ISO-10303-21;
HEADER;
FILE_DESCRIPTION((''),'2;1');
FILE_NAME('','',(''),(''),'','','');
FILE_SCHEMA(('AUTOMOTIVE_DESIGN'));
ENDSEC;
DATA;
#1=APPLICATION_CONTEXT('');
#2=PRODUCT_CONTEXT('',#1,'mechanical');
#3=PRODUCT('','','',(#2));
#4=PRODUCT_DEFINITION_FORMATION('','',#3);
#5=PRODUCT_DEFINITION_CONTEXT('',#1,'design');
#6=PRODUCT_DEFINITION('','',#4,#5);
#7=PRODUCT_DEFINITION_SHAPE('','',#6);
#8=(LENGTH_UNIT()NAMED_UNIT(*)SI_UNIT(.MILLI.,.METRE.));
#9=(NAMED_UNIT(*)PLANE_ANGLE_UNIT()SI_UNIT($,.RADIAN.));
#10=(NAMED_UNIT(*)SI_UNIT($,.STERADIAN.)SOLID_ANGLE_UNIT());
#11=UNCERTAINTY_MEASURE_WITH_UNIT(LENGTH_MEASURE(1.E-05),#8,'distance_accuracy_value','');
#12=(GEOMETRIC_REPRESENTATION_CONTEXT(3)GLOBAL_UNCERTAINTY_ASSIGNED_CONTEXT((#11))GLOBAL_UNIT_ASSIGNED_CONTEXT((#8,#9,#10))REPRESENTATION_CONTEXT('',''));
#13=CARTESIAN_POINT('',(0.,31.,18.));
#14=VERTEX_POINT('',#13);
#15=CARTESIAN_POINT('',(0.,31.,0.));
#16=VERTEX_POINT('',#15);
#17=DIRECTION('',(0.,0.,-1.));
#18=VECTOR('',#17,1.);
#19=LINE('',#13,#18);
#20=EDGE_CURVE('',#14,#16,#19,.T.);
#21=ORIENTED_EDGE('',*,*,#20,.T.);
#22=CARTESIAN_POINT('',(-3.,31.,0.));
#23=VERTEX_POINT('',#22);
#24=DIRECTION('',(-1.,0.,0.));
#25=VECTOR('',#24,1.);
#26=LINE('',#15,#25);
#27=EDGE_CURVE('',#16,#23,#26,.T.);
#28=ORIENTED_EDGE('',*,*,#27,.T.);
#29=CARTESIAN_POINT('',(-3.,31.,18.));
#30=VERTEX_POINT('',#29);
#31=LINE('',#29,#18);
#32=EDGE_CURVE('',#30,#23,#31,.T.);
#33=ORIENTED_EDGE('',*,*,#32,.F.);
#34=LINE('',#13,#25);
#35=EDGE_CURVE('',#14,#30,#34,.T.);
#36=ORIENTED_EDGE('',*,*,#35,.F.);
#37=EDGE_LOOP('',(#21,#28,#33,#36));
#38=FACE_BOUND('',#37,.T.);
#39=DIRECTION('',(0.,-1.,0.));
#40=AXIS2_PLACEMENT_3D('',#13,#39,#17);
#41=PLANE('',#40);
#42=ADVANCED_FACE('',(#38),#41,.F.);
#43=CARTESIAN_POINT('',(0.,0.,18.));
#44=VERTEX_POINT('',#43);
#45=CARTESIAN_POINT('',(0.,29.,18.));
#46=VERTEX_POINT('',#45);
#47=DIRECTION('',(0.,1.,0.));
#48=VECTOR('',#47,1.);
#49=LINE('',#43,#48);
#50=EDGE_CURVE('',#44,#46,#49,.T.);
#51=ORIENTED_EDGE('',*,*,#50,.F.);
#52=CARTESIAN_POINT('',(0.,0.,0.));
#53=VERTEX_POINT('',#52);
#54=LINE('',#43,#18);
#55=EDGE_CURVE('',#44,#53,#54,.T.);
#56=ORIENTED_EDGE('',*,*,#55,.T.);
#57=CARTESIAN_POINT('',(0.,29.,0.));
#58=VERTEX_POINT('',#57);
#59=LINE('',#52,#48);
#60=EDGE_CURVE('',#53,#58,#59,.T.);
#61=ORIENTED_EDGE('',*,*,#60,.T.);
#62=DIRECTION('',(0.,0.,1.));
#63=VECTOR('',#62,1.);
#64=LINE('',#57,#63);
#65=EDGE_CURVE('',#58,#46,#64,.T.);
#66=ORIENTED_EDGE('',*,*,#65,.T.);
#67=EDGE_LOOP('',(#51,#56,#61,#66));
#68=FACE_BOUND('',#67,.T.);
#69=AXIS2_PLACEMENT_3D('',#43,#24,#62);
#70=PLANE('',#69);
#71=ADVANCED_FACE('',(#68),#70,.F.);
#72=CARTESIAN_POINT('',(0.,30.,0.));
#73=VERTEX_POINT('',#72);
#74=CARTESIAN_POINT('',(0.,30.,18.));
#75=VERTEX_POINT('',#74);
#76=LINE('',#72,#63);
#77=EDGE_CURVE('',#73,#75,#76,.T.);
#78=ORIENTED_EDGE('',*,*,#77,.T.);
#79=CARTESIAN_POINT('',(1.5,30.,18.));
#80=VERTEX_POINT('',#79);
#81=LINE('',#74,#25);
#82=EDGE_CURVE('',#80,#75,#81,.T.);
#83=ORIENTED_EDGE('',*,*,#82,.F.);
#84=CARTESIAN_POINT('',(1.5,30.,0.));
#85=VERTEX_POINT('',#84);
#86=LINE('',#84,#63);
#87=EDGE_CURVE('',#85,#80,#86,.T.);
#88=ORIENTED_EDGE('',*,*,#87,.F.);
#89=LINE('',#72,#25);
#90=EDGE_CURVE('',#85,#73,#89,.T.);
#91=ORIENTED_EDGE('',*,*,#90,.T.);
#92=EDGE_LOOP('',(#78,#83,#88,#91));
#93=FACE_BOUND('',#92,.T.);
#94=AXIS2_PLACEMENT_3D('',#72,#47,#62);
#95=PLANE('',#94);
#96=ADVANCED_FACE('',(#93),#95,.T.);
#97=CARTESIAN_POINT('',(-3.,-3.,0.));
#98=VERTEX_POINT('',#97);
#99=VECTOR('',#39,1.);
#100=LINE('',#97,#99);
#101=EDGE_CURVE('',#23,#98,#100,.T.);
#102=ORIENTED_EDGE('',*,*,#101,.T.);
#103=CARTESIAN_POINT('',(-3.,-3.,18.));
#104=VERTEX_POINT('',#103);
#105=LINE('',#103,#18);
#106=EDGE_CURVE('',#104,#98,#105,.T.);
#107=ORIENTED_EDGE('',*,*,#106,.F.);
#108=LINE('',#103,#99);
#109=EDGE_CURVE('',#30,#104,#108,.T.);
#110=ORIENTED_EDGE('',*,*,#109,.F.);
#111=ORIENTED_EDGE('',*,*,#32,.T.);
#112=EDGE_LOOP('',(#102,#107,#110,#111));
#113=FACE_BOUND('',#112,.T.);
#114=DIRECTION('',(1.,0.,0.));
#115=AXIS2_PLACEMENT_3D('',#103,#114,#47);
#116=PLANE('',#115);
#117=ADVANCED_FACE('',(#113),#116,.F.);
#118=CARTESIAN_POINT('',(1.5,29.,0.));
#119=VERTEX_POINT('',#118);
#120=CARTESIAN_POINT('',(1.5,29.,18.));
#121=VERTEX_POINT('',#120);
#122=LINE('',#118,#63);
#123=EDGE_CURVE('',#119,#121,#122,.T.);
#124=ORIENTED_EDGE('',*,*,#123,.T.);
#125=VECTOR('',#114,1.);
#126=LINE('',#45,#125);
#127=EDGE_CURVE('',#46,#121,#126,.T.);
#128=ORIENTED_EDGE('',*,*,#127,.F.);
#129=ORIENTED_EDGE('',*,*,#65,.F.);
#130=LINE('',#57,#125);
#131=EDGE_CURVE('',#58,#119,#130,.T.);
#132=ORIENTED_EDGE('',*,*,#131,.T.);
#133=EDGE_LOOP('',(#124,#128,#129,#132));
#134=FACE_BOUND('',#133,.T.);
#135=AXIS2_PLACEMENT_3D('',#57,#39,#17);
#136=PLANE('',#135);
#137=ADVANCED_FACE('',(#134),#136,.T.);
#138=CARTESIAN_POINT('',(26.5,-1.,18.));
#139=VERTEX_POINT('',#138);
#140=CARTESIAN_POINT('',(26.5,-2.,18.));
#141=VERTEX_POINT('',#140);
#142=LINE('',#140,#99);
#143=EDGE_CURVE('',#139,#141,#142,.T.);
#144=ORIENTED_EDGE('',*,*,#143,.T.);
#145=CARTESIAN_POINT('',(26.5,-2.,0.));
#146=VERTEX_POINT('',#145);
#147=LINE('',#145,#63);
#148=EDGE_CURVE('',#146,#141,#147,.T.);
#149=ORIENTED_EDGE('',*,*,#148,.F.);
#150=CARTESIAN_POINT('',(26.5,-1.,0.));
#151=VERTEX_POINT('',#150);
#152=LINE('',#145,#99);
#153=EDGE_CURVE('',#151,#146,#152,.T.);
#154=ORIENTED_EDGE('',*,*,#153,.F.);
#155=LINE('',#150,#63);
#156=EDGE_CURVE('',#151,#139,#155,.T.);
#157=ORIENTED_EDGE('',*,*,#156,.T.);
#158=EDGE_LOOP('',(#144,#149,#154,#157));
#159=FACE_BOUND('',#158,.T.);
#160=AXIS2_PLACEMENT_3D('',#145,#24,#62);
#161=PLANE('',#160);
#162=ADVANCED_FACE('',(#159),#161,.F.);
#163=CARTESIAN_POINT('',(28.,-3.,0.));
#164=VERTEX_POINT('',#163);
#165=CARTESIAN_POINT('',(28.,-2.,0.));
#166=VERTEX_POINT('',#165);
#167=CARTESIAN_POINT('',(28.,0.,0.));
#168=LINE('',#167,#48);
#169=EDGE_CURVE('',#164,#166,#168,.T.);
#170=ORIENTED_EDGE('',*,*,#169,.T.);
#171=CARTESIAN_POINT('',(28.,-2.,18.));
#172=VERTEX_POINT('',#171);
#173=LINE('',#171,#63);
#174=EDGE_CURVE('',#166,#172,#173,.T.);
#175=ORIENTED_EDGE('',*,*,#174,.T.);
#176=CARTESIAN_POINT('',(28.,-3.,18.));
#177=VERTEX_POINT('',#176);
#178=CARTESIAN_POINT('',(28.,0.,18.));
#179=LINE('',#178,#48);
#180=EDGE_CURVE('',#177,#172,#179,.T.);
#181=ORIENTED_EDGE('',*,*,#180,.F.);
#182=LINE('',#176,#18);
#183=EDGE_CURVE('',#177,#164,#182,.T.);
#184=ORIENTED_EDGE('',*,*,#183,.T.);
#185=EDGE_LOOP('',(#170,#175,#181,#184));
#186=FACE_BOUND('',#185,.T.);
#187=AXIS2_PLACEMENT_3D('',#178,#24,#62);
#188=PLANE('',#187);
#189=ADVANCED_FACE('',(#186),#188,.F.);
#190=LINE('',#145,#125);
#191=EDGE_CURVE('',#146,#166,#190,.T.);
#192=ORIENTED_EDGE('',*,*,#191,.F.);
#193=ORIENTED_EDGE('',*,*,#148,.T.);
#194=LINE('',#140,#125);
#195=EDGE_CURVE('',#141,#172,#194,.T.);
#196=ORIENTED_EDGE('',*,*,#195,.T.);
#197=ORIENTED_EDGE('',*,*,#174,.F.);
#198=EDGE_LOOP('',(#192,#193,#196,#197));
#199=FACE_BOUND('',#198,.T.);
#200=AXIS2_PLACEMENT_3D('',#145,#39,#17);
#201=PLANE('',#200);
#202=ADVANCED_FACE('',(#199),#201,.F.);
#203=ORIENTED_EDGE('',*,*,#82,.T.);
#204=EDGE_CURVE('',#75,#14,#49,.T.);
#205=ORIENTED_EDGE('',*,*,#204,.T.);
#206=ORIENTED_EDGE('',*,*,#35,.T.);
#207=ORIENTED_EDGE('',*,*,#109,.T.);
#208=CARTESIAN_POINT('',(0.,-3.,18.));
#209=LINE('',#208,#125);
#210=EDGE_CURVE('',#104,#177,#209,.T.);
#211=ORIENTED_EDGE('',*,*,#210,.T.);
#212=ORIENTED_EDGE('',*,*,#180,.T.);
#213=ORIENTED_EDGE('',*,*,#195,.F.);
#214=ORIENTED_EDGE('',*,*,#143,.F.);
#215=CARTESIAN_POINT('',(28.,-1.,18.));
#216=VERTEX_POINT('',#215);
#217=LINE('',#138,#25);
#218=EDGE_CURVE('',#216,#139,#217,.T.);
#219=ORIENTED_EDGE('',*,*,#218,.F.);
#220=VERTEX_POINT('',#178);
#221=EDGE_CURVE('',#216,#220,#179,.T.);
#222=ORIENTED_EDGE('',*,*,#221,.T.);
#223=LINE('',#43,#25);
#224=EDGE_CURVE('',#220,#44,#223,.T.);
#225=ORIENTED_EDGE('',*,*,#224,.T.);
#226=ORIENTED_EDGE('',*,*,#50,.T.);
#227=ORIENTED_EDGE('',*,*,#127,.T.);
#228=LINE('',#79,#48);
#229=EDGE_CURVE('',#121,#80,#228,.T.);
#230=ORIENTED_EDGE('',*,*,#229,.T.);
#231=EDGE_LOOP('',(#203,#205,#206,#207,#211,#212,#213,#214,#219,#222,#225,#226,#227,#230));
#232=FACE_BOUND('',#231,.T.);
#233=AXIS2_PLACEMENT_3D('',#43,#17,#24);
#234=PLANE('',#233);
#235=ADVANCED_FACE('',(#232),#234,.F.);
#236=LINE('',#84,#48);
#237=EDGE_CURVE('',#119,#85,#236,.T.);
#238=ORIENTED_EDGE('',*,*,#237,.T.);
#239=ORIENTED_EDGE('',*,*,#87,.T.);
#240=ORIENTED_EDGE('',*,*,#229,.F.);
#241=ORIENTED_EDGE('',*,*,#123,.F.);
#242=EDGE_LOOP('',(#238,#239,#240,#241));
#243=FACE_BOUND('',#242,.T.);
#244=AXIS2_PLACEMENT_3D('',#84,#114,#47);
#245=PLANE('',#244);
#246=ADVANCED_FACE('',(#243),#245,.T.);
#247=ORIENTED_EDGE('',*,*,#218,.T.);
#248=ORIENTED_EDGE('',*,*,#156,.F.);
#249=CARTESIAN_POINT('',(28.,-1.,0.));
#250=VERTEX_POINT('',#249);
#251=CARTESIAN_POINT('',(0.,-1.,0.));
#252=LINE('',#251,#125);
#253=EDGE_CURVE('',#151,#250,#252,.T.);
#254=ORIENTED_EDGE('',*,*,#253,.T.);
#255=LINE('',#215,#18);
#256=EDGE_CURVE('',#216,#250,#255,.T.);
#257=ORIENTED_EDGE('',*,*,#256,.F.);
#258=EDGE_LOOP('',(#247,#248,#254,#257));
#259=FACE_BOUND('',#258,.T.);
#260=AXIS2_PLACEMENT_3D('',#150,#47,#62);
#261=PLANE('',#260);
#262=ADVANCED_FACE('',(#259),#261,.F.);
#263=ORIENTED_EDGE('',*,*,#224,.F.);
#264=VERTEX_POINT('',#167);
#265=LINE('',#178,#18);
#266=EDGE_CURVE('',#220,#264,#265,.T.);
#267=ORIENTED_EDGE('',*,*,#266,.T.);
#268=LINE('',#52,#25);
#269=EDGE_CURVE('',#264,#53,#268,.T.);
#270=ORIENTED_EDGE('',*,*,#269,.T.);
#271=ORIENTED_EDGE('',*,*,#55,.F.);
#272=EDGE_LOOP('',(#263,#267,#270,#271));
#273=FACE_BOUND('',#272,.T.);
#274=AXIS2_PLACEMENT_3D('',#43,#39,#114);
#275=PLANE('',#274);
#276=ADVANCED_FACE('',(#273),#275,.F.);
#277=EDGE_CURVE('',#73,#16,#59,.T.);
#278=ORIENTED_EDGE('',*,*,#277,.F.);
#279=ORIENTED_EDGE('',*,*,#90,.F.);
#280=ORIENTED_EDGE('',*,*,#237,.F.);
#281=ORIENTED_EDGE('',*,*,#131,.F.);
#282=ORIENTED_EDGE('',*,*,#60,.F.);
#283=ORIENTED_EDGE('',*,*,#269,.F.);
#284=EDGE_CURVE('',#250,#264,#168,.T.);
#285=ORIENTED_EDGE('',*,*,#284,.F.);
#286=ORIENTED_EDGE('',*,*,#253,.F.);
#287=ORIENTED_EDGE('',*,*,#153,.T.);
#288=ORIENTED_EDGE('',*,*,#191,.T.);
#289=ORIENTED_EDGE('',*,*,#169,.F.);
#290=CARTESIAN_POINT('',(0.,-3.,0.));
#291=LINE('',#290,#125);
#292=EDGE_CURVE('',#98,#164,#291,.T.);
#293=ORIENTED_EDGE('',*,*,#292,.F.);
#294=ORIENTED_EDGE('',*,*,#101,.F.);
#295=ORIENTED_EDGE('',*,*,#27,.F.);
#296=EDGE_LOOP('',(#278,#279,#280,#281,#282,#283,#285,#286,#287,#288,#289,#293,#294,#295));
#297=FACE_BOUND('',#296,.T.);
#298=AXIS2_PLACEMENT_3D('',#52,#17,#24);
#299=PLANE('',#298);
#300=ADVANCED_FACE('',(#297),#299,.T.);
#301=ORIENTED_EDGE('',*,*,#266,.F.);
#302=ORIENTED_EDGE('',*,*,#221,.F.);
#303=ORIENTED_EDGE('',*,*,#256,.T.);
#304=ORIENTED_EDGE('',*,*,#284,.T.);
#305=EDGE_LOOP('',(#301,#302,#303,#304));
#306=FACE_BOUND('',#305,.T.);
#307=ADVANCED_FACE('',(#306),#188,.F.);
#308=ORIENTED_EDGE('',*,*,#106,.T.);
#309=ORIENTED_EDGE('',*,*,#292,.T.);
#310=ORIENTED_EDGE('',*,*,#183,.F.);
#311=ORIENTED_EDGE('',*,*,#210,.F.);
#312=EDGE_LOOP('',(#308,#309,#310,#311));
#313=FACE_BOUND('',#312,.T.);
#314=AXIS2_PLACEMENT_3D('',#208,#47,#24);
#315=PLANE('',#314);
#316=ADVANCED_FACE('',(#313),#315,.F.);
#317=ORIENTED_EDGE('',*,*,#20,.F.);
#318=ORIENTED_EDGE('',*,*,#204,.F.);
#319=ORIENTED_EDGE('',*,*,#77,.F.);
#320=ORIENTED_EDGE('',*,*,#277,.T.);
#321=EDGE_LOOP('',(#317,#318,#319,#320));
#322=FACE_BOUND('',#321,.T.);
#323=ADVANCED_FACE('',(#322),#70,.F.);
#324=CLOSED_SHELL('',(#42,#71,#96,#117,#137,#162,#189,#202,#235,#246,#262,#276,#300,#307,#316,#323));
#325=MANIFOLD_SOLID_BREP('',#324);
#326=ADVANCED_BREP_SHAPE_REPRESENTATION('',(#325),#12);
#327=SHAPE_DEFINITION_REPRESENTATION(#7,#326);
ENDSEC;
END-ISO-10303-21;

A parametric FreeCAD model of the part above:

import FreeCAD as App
import Part
import Sketcher

V = App.Vector
Q = App.Units.Quantity


def add_polygon(sketch, points):
    """Adds a closed chain of lines whose ends are joined by coincident constraints."""
    first, n = sketch.GeometryCount, len(points)
    for a, b in zip(points, points[1:] + points[:1]):
        sketch.addGeometry(Part.LineSegment(App.Vector(*a, 0), App.Vector(*b, 0)), False)
    for i in range(n):
        sketch.addConstraint(Sketcher.Constraint("Coincident", first + i, 2, first + (i + 1) % n, 1))

doc = App.newDocument("Part")
body = doc.addObject("PartDesign::Body", "Body")

# Sketch on XY plane
sketch1 = doc.addObject("Sketcher::SketchObject", "Sketch")
body.addObject(sketch1)
sketch1.AttachmentSupport = (doc.XY_Plane, [""])
sketch1.MapMode = "FlatFace"
add_polygon(sketch1, [(0, 0), (0, 31), (-3, 31), (-3, -3), (28, -3), (28, 0)])  # lines 0-5
sketch1.addConstraint([
    Sketcher.Constraint("Vertical", 0),
    Sketcher.Constraint("Horizontal", 1),
    Sketcher.Constraint("Vertical", 2),
    Sketcher.Constraint("Horizontal", 3),
    Sketcher.Constraint("Vertical", 4),
    Sketcher.Constraint("Horizontal", 5),
    Sketcher.Constraint("Coincident", 5, 2, -1, 1),
    Sketcher.Constraint("Equal", 3, 0),
    Sketcher.Constraint("Equal", 1, 4),
    Sketcher.Constraint("DistanceX", 1, 2, 1, 1, Q("3 mm")),
    Sketcher.Constraint("DistanceX", 3, 1, 3, 2, Q("31 mm")),
])
pad1 = doc.addObject("PartDesign::Pad", "Pad")
body.addObject(pad1)
pad1.Profile = sketch1
pad1.Length = 18

# Sketch on XY plane
sketch2 = doc.addObject("Sketcher::SketchObject", "Sketch001")
body.addObject(sketch2)
sketch2.AttachmentSupport = (doc.XY_Plane, [""])
sketch2.MapMode = "FlatFace"
sketch2.AttachmentOffset = App.Placement(V(0, 0, 18), App.Rotation())
add_polygon(sketch2, [(26.5, -1), (26.5, -2), (29.5, -2), (29.5, -1)])  # lines 0-3
sketch2.addConstraint([
    Sketcher.Constraint("Vertical", 0),
    Sketcher.Constraint("Horizontal", 1),
    Sketcher.Constraint("Vertical", 2),
    Sketcher.Constraint("Horizontal", 3),
    Sketcher.Constraint("DistanceX", 1, 1, 1, 2, Q("3 mm")),
    Sketcher.Constraint("DistanceY", 0, 2, 0, 1, Q("1 mm")),
    Sketcher.Constraint("DistanceY", 0, 2, -1, 1, Q("2 mm")),
    Sketcher.Constraint("DistanceX", -1, 1, 0, 2, Q("26.5 mm")),
])
pocket1 = doc.addObject("PartDesign::Pocket", "Pocket")
body.addObject(pocket1)
pocket1.Profile = sketch2
pocket1.Type = "ThroughAll"

# Sketch on XY plane
sketch3 = doc.addObject("Sketcher::SketchObject", "Sketch002")
body.addObject(sketch3)
sketch3.AttachmentSupport = (doc.XY_Plane, [""])
sketch3.MapMode = "FlatFace"
sketch3.AttachmentOffset = App.Placement(V(0, 0, 18), App.Rotation())
add_polygon(sketch3, [(0, 30), (0, 29), (1.5, 29), (1.5, 30)])  # lines 0-3
sketch3.addConstraint([
    Sketcher.Constraint("Vertical", 0),
    Sketcher.Constraint("Horizontal", 1),
    Sketcher.Constraint("Vertical", 2),
    Sketcher.Constraint("Horizontal", 3),
    Sketcher.Constraint("PointOnObject", 0, 2, -2),
    Sketcher.Constraint("DistanceY", 0, 2, 0, 1, Q("1 mm")),
    Sketcher.Constraint("DistanceX", 1, 1, 1, 2, Q("1.5 mm")),
    Sketcher.Constraint("DistanceY", -1, 1, 0, 2, Q("29 mm")),
])
pad2 = doc.addObject("PartDesign::Pad", "Pad001")
body.addObject(pad2)
pad2.Profile = sketch3
pad2.Length = 18
pad2.Reversed = True

doc.recompute()
